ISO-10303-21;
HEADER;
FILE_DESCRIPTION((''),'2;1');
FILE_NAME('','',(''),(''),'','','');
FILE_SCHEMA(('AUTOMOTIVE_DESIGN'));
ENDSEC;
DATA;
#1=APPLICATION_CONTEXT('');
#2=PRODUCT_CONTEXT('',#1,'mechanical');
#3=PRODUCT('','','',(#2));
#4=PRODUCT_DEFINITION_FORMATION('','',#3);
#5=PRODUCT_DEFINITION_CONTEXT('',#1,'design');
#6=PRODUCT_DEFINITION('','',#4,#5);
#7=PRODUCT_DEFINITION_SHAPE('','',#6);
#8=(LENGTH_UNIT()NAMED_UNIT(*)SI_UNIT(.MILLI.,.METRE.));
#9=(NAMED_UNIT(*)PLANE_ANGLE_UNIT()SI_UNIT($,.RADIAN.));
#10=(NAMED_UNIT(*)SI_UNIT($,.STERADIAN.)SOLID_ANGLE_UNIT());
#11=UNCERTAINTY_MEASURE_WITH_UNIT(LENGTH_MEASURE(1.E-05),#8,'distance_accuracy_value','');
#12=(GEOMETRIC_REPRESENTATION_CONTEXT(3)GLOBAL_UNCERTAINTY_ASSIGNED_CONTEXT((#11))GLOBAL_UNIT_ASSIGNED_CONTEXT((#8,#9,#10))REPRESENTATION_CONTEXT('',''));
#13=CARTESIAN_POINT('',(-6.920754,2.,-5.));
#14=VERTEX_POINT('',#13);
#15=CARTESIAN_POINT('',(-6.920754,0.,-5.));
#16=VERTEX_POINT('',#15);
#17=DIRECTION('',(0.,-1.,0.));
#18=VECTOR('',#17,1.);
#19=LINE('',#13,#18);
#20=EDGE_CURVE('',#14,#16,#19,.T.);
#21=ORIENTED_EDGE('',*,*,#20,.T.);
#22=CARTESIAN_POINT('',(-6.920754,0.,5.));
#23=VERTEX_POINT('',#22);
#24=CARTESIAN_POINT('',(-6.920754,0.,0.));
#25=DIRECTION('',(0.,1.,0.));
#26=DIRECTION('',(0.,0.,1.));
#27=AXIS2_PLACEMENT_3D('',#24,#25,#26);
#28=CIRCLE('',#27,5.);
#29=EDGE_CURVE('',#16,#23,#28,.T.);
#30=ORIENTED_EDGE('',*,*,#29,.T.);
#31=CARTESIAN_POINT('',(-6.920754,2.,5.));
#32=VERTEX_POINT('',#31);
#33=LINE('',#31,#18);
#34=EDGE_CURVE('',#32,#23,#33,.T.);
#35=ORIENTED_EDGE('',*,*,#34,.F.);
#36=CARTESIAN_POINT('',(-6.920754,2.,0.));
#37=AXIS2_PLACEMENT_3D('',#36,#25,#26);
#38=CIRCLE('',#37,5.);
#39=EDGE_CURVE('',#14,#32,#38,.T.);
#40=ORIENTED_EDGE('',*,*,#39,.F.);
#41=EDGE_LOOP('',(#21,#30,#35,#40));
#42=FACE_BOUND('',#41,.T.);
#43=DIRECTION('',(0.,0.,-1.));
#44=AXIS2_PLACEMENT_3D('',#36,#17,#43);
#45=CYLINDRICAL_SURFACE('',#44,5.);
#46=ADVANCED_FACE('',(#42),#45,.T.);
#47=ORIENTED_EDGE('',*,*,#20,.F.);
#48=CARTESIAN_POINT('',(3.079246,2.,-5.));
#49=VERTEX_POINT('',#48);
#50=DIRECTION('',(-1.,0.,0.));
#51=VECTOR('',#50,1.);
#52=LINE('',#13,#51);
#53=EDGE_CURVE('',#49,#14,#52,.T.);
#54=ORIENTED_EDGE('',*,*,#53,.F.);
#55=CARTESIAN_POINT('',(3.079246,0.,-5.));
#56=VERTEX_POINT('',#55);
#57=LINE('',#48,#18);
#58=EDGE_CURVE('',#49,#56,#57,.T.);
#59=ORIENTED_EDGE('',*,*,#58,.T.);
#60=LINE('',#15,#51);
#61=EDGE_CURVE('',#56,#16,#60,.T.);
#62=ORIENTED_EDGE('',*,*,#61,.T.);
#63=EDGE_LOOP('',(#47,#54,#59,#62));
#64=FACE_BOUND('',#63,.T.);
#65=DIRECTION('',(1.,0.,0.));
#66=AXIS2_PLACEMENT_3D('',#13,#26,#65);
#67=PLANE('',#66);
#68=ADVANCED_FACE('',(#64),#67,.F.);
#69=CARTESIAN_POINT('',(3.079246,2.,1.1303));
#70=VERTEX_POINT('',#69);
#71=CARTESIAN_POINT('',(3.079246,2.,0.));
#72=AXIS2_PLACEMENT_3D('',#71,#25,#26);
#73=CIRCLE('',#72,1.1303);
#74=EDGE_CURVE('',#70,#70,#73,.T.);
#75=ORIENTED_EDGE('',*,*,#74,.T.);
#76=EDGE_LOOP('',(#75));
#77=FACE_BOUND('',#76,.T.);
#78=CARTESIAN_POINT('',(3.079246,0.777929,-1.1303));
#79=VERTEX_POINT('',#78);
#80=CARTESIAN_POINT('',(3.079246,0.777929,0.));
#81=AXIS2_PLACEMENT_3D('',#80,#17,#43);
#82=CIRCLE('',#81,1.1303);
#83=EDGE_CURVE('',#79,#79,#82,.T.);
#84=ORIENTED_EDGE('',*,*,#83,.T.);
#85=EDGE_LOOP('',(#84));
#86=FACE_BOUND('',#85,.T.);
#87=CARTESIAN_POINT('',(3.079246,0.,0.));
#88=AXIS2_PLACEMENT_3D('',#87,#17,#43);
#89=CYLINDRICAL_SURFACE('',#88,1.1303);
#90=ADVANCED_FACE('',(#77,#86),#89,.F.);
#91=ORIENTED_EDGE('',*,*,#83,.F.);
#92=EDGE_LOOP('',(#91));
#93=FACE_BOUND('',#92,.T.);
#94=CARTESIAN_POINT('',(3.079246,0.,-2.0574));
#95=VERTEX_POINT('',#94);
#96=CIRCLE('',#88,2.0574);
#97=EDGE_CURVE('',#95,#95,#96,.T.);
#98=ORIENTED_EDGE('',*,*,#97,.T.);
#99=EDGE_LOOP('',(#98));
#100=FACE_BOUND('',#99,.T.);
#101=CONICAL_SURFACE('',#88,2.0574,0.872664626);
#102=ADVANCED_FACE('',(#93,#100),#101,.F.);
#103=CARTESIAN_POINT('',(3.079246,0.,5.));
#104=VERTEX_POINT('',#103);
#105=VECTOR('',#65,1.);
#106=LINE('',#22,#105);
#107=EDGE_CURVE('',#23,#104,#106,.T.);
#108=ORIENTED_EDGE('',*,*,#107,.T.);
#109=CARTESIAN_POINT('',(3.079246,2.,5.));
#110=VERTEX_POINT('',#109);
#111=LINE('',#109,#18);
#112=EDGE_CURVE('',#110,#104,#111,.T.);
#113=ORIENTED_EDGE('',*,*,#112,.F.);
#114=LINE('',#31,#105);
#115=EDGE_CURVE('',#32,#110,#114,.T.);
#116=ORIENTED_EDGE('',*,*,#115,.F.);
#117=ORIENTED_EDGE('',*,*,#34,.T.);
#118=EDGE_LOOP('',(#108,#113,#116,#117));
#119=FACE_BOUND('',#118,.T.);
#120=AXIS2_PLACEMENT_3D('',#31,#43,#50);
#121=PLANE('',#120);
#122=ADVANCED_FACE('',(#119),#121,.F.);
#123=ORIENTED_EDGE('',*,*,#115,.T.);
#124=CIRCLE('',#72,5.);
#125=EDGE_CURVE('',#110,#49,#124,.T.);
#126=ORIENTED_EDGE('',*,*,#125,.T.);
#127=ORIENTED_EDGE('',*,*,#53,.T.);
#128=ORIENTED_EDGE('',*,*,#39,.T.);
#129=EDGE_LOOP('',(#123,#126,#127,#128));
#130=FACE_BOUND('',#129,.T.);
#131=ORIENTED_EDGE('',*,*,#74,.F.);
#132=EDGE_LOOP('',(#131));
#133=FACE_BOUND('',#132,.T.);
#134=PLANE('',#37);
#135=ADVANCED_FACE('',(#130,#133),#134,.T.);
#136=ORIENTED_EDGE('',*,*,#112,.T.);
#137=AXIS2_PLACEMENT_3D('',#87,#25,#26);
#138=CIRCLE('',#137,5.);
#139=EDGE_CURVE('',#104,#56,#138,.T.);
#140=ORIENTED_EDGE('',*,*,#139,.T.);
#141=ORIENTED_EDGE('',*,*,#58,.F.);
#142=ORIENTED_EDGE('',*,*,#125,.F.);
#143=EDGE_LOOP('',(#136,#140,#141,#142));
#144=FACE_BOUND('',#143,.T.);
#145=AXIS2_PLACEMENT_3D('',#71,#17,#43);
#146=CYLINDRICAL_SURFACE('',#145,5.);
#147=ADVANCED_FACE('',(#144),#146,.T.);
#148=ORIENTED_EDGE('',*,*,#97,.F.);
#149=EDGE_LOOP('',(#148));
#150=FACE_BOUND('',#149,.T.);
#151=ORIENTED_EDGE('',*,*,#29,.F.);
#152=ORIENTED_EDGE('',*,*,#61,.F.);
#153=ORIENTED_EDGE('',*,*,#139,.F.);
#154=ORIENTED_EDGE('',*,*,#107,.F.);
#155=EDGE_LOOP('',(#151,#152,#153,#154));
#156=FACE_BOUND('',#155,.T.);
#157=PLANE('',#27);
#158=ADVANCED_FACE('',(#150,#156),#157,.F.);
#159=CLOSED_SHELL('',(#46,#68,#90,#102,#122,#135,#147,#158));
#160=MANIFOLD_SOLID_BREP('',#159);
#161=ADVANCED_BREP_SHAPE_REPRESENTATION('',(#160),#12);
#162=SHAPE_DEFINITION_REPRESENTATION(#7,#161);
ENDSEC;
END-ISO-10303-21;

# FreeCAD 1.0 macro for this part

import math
import FreeCAD as App
import Part
import Sketcher

doc = App.newDocument("Part")
body = doc.addObject("PartDesign::Body", "Body")

# Sketch on XZ plane
sketch1 = body.newObject("Sketcher::SketchObject", "Sketch")
sketch1.AttachmentSupport = (doc.getObject("XZ_Plane"), [""])
sketch1.MapMode = "FlatFace"
sketch1.addGeometry(Part.LineSegment(App.Vector(3, -5, 0), App.Vector(-7, -5, 0)), False)
sketch1.addGeometry(Part.ArcOfCircle(Part.Circle(App.Vector(-7, 0, 0), App.Vector(0, 0, 1), 5), math.radians(90), math.radians(270)), False)
sketch1.addGeometry(Part.LineSegment(App.Vector(-7, 5, 0), App.Vector(3, 5, 0)), False)
sketch1.addGeometry(Part.ArcOfCircle(Part.Circle(App.Vector(3, 0, 0), App.Vector(0, 0, 1), 5), math.radians(-90), math.radians(90)), False)
sketch1.addConstraint(Sketcher.Constraint("Tangent", 0, 2, 1, 2))
sketch1.addConstraint(Sketcher.Constraint("Tangent", 1, 1, 2, 1))
sketch1.addConstraint(Sketcher.Constraint("Tangent", 2, 2, 3, 2))
sketch1.addConstraint(Sketcher.Constraint("Tangent", 3, 1, 0, 1))
sketch1.addConstraint(Sketcher.Constraint("Horizontal", 0))
sketch1.addConstraint(Sketcher.Constraint("Horizontal", 2))
sketch1.addConstraint(Sketcher.Constraint("PointOnObject", 1, 3, -1))
sketch1.addConstraint(Sketcher.Constraint("Radius", 1, 5.0))
sketch1.addConstraint(Sketcher.Constraint("DistanceX", 0, 2, 0, 1, 10.0))
sketch1.addConstraint(Sketcher.Constraint("DistanceX", 1, 3, -1, 1, 6.920754))
pad1 = body.newObject("PartDesign::Pad", "Pad")
pad1.Profile = sketch1
pad1.Length = 2
pad1.Reversed = True

# Sketch on XZ plane
sketch2 = body.newObject("Sketcher::SketchObject", "Sketch001")
sketch2.AttachmentSupport = (doc.getObject("XZ_Plane"), [""])
sketch2.MapMode = "FlatFace"
sketch2.addGeometry(Part.Circle(App.Vector(3.1, 0, 0), App.Vector(0, 0, 1), 1.1), False)
sketch2.addConstraint(Sketcher.Constraint("PointOnObject", 0, 3, -1))
sketch2.addConstraint(Sketcher.Constraint("Diameter", 0, 2.2606))
sketch2.addConstraint(Sketcher.Constraint("DistanceX", -1, 1, 0, 3, 3.079246))
doc.recompute()
hole = body.newObject("PartDesign::Hole", "Hole")
hole.Profile = sketch2
hole.ThreadType = "None"
hole.Diameter = 2.2606
hole.DepthType = "Dimension"
hole.Depth = 30
hole.DrillPoint = "Angled"
hole.DrillPointAngle = 118
hole.HoleCutType = "Countersink"
hole.HoleCutDiameter = 4.1148
hole.HoleCutCountersinkAngle = 100

doc.recompute()
